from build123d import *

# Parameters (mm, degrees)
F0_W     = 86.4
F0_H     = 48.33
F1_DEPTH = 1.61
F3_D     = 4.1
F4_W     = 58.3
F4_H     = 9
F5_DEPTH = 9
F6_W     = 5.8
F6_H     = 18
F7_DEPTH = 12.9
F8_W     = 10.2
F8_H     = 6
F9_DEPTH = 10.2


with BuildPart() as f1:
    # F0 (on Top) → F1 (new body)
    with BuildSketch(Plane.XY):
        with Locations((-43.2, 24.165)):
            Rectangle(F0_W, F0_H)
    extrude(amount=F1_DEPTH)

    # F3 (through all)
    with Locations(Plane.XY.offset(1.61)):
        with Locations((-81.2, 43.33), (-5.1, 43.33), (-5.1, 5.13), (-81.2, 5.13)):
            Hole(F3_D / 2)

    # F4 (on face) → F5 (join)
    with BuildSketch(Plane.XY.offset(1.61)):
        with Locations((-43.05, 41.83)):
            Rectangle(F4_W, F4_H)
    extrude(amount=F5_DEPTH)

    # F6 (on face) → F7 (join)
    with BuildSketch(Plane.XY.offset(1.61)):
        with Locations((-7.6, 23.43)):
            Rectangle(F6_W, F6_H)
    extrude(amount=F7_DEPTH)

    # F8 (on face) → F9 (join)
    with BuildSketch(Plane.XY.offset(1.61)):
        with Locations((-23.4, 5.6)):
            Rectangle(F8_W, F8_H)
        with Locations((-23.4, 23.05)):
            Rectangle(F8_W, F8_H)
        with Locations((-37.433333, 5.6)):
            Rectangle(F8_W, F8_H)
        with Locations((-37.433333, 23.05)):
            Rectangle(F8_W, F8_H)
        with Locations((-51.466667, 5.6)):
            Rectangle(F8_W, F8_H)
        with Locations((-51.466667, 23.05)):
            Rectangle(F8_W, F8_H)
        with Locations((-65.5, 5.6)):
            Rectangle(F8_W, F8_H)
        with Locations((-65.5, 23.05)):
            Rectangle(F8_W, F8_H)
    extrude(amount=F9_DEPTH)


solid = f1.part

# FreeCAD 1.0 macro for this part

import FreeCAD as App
import Part
import Sketcher

V = App.Vector
Q = App.Units.Quantity


def add_polygon(sketch, points):
    """Adds a closed chain of lines whose ends are joined by coincident constraints."""
    first, n = sketch.GeometryCount, len(points)
    for a, b in zip(points, points[1:] + points[:1]):
        sketch.addGeometry(Part.LineSegment(App.Vector(*a, 0), App.Vector(*b, 0)), False)
    for i in range(n):
        sketch.addConstraint(Sketcher.Constraint("Coincident", first + i, 2, first + (i + 1) % n, 1))

doc = App.newDocument("Part")
body = doc.addObject("PartDesign::Body", "Body")

# Sketch on XY plane
sketch1 = body.newObject("Sketcher::SketchObject", "Sketch")
sketch1.AttachmentSupport = (doc.getObject("XY_Plane"), [""])
sketch1.MapMode = "FlatFace"
add_polygon(sketch1, [(-86, 48), (-86, 0), (0, 0), (0, 48)])  # lines 0-3
sketch1.addConstraint([
    Sketcher.Constraint("Vertical", 0),
    Sketcher.Constraint("Horizontal", 1),
    Sketcher.Constraint("Vertical", 2),
    Sketcher.Constraint("Horizontal", 3),
    Sketcher.Constraint("Coincident", 1, 2, -1, 1),
    Sketcher.Constraint("DistanceX", 1, 1, 1, 2, Q("86.4 mm")),
    Sketcher.Constraint("DistanceY", 0, 2, 0, 1, Q("48.33 mm")),
])
pad1 = body.newObject("PartDesign::Pad", "Pad")
pad1.Profile = sketch1
pad1.Length = 1.61

# Sketch on XY plane
sketch2 = body.newObject("Sketcher::SketchObject", "Sketch001")
sketch2.AttachmentSupport = (doc.getObject("XY_Plane"), [""])
sketch2.MapMode = "FlatFace"
sketch2.AttachmentOffset = App.Placement(V(0, 0, 1.61), App.Rotation())
sketch2.addGeometry([
    Part.Circle(V(-81.2, 43.3, 0), V(0, 0, 1), 2),
    Part.Circle(V(-5.1, 43.3, 0), V(0, 0, 1), 2),
    Part.Circle(V(-5.1, 5.1, 0), V(0, 0, 1), 2),
    Part.Circle(V(-81.2, 5.1, 0), V(0, 0, 1), 2),
], False)
sketch2.addConstraint([
    Sketcher.Constraint("Equal", 0, 1),
    Sketcher.Constraint("Equal", 1, 2),
    Sketcher.Constraint("Equal", 2, 3),
    Sketcher.Constraint("Horizontal", 0, 3, 1, 3),
    Sketcher.Constraint("Horizontal", 2, 3, 3, 3),
    Sketcher.Constraint("Vertical", 1, 3, 2, 3),
    Sketcher.Constraint("Vertical", 0, 3, 3, 3),
    Sketcher.Constraint("Diameter", 0, Q("4.1 mm")),
    Sketcher.Constraint("DistanceX", 0, 3, -1, 1, Q("81.2 mm")),
    Sketcher.Constraint("DistanceX", 1, 3, -1, 1, Q("5.1 mm")),
    Sketcher.Constraint("DistanceY", 2, 3, 1, 3, Q("38.2 mm")),
    Sketcher.Constraint("DistanceY", -1, 1, 0, 3, Q("43.33 mm")),
])
doc.recompute()
hole = body.newObject("PartDesign::Hole", "Hole")
hole.Profile = sketch2
hole.ThreadType = "None"
hole.Diameter = 4.1
hole.DepthType = "ThroughAll"

# Sketch on XY plane
sketch3 = body.newObject("Sketcher::SketchObject", "Sketch002")
sketch3.AttachmentSupport = (doc.getObject("XY_Plane"), [""])
sketch3.MapMode = "FlatFace"
sketch3.AttachmentOffset = App.Placement(V(0, 0, 1.61), App.Rotation())
add_polygon(sketch3, [(-72, 46), (-72, 37), (-14, 37), (-14, 46)])  # lines 0-3
sketch3.addConstraint([
    Sketcher.Constraint("Vertical", 0),
    Sketcher.Constraint("Horizontal", 1),
    Sketcher.Constraint("Vertical", 2),
    Sketcher.Constraint("Horizontal", 3),
    Sketcher.Constraint("DistanceY", 0, 2, 0, 1, Q("9 mm")),
    Sketcher.Constraint("DistanceX", 1, 1, 1, 2, Q("58.3 mm")),
    Sketcher.Constraint("DistanceX", 0, 2, -1, 1, Q("72.2 mm")),
    Sketcher.Constraint("DistanceY", -1, 1, 0, 2, Q("37.33 mm")),
])
pad2 = body.newObject("PartDesign::Pad", "Pad001")
pad2.Profile = sketch3
pad2.Length = 9

# Sketch on XY plane
sketch4 = body.newObject("Sketcher::SketchObject", "Sketch003")
sketch4.AttachmentSupport = (doc.getObject("XY_Plane"), [""])
sketch4.MapMode = "FlatFace"
sketch4.AttachmentOffset = App.Placement(V(0, 0, 1.61), App.Rotation())
add_polygon(sketch4, [(-10, 32), (-10, 14), (-5, 14), (-5, 32)])  # lines 0-3
sketch4.addConstraint([
    Sketcher.Constraint("Vertical", 0),
    Sketcher.Constraint("Horizontal", 1),
    Sketcher.Constraint("Vertical", 2),
    Sketcher.Constraint("Horizontal", 3),
    Sketcher.Constraint("DistanceY", 0, 2, 0, 1, Q("18 mm")),
    Sketcher.Constraint("DistanceX", 1, 1, 1, 2, Q("5.8 mm")),
    Sketcher.Constraint("DistanceX", 0, 2, -1, 1, Q("10.5 mm")),
    Sketcher.Constraint("DistanceY", -1, 1, 0, 2, Q("14.43 mm")),
])
pad3 = body.newObject("PartDesign::Pad", "Pad002")
pad3.Profile = sketch4
pad3.Length = 12.9

# Sketch on XY plane
sketch5 = body.newObject("Sketcher::SketchObject", "Sketch004")
sketch5.AttachmentSupport = (doc.getObject("XY_Plane"), [""])
sketch5.MapMode = "FlatFace"
sketch5.AttachmentOffset = App.Placement(V(0, 0, 1.61), App.Rotation())
add_polygon(sketch5, [(-28, 9), (-28, 3), (-18, 3), (-18, 9)])  # lines 0-3
add_polygon(sketch5, [(-28, 26), (-28, 20), (-18, 20), (-18, 26)])  # lines 4-7
add_polygon(sketch5, [(-43, 9), (-43, 3), (-32, 3), (-32, 9)])  # lines 8-11
add_polygon(sketch5, [(-43, 26), (-43, 20), (-32, 20), (-32, 26)])  # lines 12-15
add_polygon(sketch5, [(-57, 9), (-57, 3), (-46, 3), (-46, 9)])  # lines 16-19
add_polygon(sketch5, [(-57, 26), (-57, 20), (-46, 20), (-46, 26)])  # lines 20-23
add_polygon(sketch5, [(-71, 9), (-71, 3), (-60, 3), (-60, 9)])  # lines 24-27
add_polygon(sketch5, [(-71, 26), (-71, 20), (-60, 20), (-60, 26)])  # lines 28-31
sketch5.addConstraint([
    Sketcher.Constraint("Vertical", 0),
    Sketcher.Constraint("Horizontal", 1),
    Sketcher.Constraint("Vertical", 2),
    Sketcher.Constraint("Horizontal", 3),
    Sketcher.Constraint("Vertical", 4),
    Sketcher.Constraint("Horizontal", 5),
    Sketcher.Constraint("Vertical", 6),
    Sketcher.Constraint("Horizontal", 7),
    Sketcher.Constraint("Vertical", 8),
    Sketcher.Constraint("Horizontal", 9),
    Sketcher.Constraint("Vertical", 10),
    Sketcher.Constraint("Horizontal", 11),
    Sketcher.Constraint("Vertical", 12),
    Sketcher.Constraint("Horizontal", 13),
    Sketcher.Constraint("Vertical", 14),
    Sketcher.Constraint("Horizontal", 15),
    Sketcher.Constraint("Vertical", 16),
    Sketcher.Constraint("Horizontal", 17),
    Sketcher.Constraint("Vertical", 18),
    Sketcher.Constraint("Horizontal", 19),
    Sketcher.Constraint("Vertical", 20),
    Sketcher.Constraint("Horizontal", 21),
    Sketcher.Constraint("Vertical", 22),
    Sketcher.Constraint("Horizontal", 23),
    Sketcher.Constraint("Vertical", 24),
    Sketcher.Constraint("Horizontal", 25),
    Sketcher.Constraint("Vertical", 26),
    Sketcher.Constraint("Horizontal", 27),
    Sketcher.Constraint("Vertical", 28),
    Sketcher.Constraint("Horizontal", 29),
    Sketcher.Constraint("Vertical", 30),
    Sketcher.Constraint("Horizontal", 31),
    Sketcher.Constraint("Horizontal", 1, 2, 8, 2),
    Sketcher.Constraint("Horizontal", 3, 2, 10, 2),
    Sketcher.Constraint("Horizontal", 5, 2, 12, 2),
    Sketcher.Constraint("Horizontal", 7, 2, 14, 2),
    Sketcher.Constraint("Horizontal", 9, 2, 16, 2),
    Sketcher.Constraint("Horizontal", 11, 2, 18, 2),
    Sketcher.Constraint("Horizontal", 13, 2, 20, 2),
    Sketcher.Constraint("Horizontal", 15, 2, 22, 2),
    Sketcher.Constraint("Horizontal", 17, 2, 24, 2),
    Sketcher.Constraint("Horizontal", 19, 2, 26, 2),
    Sketcher.Constraint("Horizontal", 21, 2, 28, 2),
    Sketcher.Constraint("Horizontal", 23, 2, 30, 2),
    Sketcher.Constraint("Vertical", 3, 2, 4, 2),
    Sketcher.Constraint("Vertical", 2, 2, 5, 2),
    Sketcher.Constraint("Vertical", 11, 2, 12, 2),
    Sketcher.Constraint("Vertical", 10, 2, 13, 2),
    Sketcher.Constraint("Vertical", 19, 2, 20, 2),
    Sketcher.Constraint("Vertical", 18, 2, 21, 2),
    Sketcher.Constraint("Vertical", 27, 2, 28, 2),
    Sketcher.Constraint("Vertical", 26, 2, 29, 2),
    Sketcher.Constraint("Equal", 7, 9),
    Sketcher.Constraint("Equal", 15, 17),
    Sketcher.Constraint("Equal", 23, 25),
    Sketcher.Constraint("Equal", 2, 4),
    Sketcher.Constraint("DistanceY", 0, 2, 0, 1, Q("6 mm")),
    Sketcher.Constraint("DistanceX", 1, 1, 1, 2, Q("10.2 mm")),
    Sketcher.Constraint("DistanceX", 0, 2, -1, 1, Q("28.5 mm")),
    Sketcher.Constraint("DistanceY", -1, 1, 0, 2, Q("2.6 mm")),
    Sketcher.Constraint("DistanceX", 24, 2, -1, 1, Q("70.6 mm")),
    Sketcher.Constraint("DistanceY", -1, 1, 4, 2, Q("20.05 mm")),
    Sketcher.Constraint("DistanceX", 8, 2, -1, 1, Q("42.533333 mm")),
    Sketcher.Constraint("DistanceX", 16, 2, -1, 1, Q("56.566667 mm")),
])
pad4 = body.newObject("PartDesign::Pad", "Pad003")
pad4.Profile = sketch5
pad4.Length = 10.2

doc.recompute()
